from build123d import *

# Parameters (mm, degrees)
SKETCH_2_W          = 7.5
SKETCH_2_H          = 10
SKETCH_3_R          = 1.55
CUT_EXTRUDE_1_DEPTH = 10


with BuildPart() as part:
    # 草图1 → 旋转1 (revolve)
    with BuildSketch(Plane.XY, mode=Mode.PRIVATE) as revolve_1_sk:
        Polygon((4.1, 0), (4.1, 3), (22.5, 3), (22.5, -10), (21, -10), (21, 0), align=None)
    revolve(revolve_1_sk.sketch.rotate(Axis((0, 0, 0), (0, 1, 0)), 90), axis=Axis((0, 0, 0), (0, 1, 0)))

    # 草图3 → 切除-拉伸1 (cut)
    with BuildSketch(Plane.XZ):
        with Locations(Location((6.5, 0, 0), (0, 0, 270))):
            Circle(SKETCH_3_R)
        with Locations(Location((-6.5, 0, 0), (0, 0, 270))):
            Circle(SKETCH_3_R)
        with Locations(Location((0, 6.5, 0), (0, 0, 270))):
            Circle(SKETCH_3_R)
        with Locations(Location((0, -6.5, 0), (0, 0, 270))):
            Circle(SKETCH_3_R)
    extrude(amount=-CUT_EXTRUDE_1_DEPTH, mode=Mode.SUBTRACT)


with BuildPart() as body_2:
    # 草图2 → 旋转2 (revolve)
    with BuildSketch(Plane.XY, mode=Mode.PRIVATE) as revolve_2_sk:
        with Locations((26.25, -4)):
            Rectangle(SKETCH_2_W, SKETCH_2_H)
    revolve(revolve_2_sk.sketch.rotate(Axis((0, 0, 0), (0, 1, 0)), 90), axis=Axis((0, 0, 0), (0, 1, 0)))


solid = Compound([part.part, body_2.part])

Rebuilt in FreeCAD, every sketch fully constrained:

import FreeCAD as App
import Part
import Sketcher
from FreeCAD import Vector
Q = App.Units.Quantity


def add_polygon(sketch, points):
    """Adds a closed chain of lines whose ends are joined by coincident constraints."""
    first, n = sketch.GeometryCount, len(points)
    for a, b in zip(points, points[1:] + points[:1]):
        sketch.addGeometry(Part.LineSegment(App.Vector(*a, 0), App.Vector(*b, 0)), False)
    for i in range(n):
        sketch.addConstraint(Sketcher.Constraint("Coincident", first + i, 2, first + (i + 1) % n, 1))

doc = App.newDocument("Part")
params = doc.addObject("Spreadsheet::Sheet", "Params")
for row, (alias, value) in enumerate([
    ("sketch1_height", "3 mm"),
    ("sketch1_height2", "10 mm"),
    ("sketch1_width", "16.9 mm"),
    ("sketch1_width2", "1.5 mm"),
    ("revolution_angle", "360 deg"),
    ("sketch2_diameter", "3.1 mm"),
    ("pocket1_length", "10 mm"),
    ("sketch3_height", "10 mm"),
    ("sketch3_width", "7.5 mm"),
    ("revolution2_angle", "360 deg"),
], start=1):
    params.set(f"A{row}", alias)
    params.set(f"B{row}", "=" + value)
    params.setAlias(f"B{row}", alias)

body = doc.addObject("PartDesign::Body", "Body")

# Sketch on XY plane
sketch1 = body.newObject("Sketcher::SketchObject", "Sketch")
sketch1.AttachmentSupport = (doc.getObject("XY_Plane"), [""])
sketch1.MapMode = "FlatFace"
add_polygon(sketch1, [(4.1, 3), (4.1, 0), (21, 0), (21, -10), (22.5, -10), (22.5, 3)])  # lines 0-5
sketch1.addConstraint([
    Sketcher.Constraint("Vertical", 0),
    Sketcher.Constraint("Horizontal", 1),
    Sketcher.Constraint("Vertical", 2),
    Sketcher.Constraint("Horizontal", 3),
    Sketcher.Constraint("Vertical", 4),
    Sketcher.Constraint("Horizontal", 5),
    Sketcher.Constraint("PointOnObject", 0, 2, -1),
    Sketcher.Constraint("DistanceY", 0, 2, 0, 1, Q("3 mm")),
    Sketcher.Constraint("DistanceY", 2, 2, 2, 1, Q("10 mm")),
    Sketcher.Constraint("DistanceX", 1, 1, 1, 2, Q("16.9 mm")),
    Sketcher.Constraint("DistanceX", 3, 1, 3, 2, Q("1.5 mm")),
    Sketcher.Constraint("DistanceX", -1, 1, 1, 2, Q("21 mm")),
])
sketch1.setExpression("Constraints[13]", "Params.sketch1_height")
sketch1.setExpression("Constraints[14]", "Params.sketch1_height2")
sketch1.setExpression("Constraints[15]", "Params.sketch1_width")
sketch1.setExpression("Constraints[16]", "Params.sketch1_width2")
revolution = body.newObject("PartDesign::Revolution", "Revolution")
revolution.Profile = sketch1
revolution.ReferenceAxis = (sketch1, ["V_Axis"])
revolution.setExpression("Angle", "Params.revolution_angle")

# Sketch on XZ plane
sketch2 = body.newObject("Sketcher::SketchObject", "Sketch001")
sketch2.AttachmentSupport = (doc.getObject("XZ_Plane"), [""])
sketch2.MapMode = "FlatFace"
sketch2.addGeometry([
    Part.Circle(Vector(6.5, 0, 0), Vector(0, 0, 1), 1.55),
    Part.Circle(Vector(-6.5, 0, 0), Vector(0, 0, 1), 1.55),
    Part.Circle(Vector(0, 6.5, 0), Vector(0, 0, 1), 1.55),
    Part.Circle(Vector(0, -6.5, 0), Vector(0, 0, 1), 1.55),
], False)
sketch2.addConstraint([
    Sketcher.Constraint("Equal", 0, 1),
    Sketcher.Constraint("Equal", 1, 2),
    Sketcher.Constraint("Equal", 2, 3),
    Sketcher.Constraint("Symmetric", 0, 3, 1, 3, -1, 1),
    Sketcher.Constraint("Symmetric", 2, 3, 3, 3, -1, 1),
    Sketcher.Constraint("PointOnObject", 0, 3, -1),
    Sketcher.Constraint("PointOnObject", 2, 3, -2),
    Sketcher.Constraint("Diameter", 0, Q("3.1 mm")),
    Sketcher.Constraint("DistanceX", 1, 3, 0, 3, Q("13 mm")),
    Sketcher.Constraint("DistanceY", 3, 3, 2, 3, Q("13 mm")),
])
sketch2.setExpression("Constraints[7]", "Params.sketch2_diameter")
pocket1 = body.newObject("PartDesign::Pocket", "Pocket")
pocket1.Profile = sketch2
pocket1.setExpression("Length", "Params.pocket1_length")
body2 = doc.addObject("PartDesign::Body", "Body001")

# Sketch on XY plane
sketch3 = body2.newObject("Sketcher::SketchObject", "Sketch002")
sketch3.AttachmentSupport = (doc.getObject("XY_Plane001"), [""])
sketch3.MapMode = "FlatFace"
add_polygon(sketch3, [(22.5, 1), (22.5, -9), (30, -9), (30, 1)])  # lines 0-3
sketch3.addConstraint([
    Sketcher.Constraint("Vertical", 0),
    Sketcher.Constraint("Horizontal", 1),
    Sketcher.Constraint("Vertical", 2),
    Sketcher.Constraint("Horizontal", 3),
    Sketcher.Constraint("DistanceY", 0, 2, 0, 1, Q("10 mm")),
    Sketcher.Constraint("DistanceX", 1, 1, 1, 2, Q("7.5 mm")),
    Sketcher.Constraint("DistanceY", 0, 2, -1, 1, Q("9 mm")),
    Sketcher.Constraint("DistanceX", -1, 1, 1, 2, Q("30 mm")),
])
sketch3.setExpression("Constraints[8]", "Params.sketch3_height")
sketch3.setExpression("Constraints[9]", "Params.sketch3_width")
revolution2 = body2.newObject("PartDesign::Revolution", "Revolution001")
revolution2.Profile = sketch3
revolution2.ReferenceAxis = (sketch3, ["V_Axis"])
revolution2.setExpression("Angle", "Params.revolution2_angle")

doc.recompute()
